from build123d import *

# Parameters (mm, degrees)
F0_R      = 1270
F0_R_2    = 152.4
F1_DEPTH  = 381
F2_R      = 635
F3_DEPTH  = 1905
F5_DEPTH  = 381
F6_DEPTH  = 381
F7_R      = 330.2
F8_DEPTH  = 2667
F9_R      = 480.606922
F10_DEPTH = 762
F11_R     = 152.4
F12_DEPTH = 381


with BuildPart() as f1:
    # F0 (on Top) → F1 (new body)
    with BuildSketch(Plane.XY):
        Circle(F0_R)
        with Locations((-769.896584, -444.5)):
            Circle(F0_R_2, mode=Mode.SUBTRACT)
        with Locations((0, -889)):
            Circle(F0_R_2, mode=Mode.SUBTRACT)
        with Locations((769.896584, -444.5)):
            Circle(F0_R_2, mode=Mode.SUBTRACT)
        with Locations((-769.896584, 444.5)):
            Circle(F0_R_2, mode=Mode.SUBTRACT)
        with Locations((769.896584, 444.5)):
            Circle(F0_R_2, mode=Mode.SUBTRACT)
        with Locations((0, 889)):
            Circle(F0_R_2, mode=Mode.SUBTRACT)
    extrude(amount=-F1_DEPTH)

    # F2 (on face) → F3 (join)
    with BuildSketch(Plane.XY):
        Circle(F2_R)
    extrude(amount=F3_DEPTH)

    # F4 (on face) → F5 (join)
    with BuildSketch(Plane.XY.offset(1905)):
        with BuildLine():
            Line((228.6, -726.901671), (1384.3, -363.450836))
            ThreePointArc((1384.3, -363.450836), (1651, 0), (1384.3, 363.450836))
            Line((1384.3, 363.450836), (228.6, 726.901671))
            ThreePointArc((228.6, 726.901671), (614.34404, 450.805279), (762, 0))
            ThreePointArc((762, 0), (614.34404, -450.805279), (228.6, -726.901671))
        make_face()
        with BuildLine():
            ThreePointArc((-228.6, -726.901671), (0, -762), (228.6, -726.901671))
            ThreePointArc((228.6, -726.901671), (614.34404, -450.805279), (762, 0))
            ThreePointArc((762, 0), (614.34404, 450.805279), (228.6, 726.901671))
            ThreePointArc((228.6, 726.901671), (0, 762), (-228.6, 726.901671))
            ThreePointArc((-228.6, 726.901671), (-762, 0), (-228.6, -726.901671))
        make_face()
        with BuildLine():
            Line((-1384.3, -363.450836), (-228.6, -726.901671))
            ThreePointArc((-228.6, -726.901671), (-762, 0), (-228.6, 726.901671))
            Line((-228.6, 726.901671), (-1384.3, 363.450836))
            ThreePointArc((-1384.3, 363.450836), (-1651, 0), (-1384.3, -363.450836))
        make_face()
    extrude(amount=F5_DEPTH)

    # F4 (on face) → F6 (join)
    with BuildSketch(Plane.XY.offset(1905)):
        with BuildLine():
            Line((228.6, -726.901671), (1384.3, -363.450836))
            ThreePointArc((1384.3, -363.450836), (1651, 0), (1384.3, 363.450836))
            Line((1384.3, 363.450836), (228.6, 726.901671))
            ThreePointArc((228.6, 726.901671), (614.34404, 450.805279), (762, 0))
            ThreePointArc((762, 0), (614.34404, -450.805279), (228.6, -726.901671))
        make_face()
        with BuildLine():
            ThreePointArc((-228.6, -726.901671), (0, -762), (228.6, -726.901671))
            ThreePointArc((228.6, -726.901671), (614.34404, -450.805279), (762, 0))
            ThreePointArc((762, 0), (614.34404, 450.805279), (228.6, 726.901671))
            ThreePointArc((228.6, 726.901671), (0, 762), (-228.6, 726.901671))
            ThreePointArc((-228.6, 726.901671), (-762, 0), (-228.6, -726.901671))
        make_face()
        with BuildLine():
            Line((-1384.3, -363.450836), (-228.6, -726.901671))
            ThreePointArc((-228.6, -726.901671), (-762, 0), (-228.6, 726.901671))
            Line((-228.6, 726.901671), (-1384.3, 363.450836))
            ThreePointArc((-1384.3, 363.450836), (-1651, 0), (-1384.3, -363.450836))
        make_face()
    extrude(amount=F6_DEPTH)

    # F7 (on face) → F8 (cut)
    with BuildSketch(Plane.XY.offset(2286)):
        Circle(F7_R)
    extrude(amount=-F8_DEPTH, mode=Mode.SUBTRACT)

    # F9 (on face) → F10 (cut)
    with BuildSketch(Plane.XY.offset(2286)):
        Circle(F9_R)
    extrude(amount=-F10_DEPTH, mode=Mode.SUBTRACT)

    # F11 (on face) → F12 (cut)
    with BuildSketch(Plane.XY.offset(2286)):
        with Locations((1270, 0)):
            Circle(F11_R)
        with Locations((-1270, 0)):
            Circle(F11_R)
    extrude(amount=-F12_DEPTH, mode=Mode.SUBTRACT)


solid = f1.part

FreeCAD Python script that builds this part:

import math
import FreeCAD as App
import Part
import Sketcher

V = App.Vector
Q = App.Units.Quantity

doc = App.newDocument("Part")
params = doc.addObject("Spreadsheet::Sheet", "Params")
for row, (alias, value) in enumerate([
    ("sketch1_diameter", "100 in"),
    ("sketch1_diameter2", "12 in"),
    ("pad1_length", "15 in"),
    ("sketch2_diameter", "50 in"),
    ("pad2_length", "75 in"),
    ("sketch3_radius", "15 in"),
    ("pad3_length", "15 in"),
    ("sketch4_radius", "15 in"),
    ("pad4_length", "15 in"),
    ("sketch5_diameter", "26 in"),
    ("pocket1_length", "105 in"),
    ("pocket2_length", "30 in"),
    ("sketch7_diameter", "12 in"),
    ("pocket3_length", "15 in"),
], start=1):
    params.set(f"A{row}", alias)
    params.set(f"B{row}", "=" + value)
    params.setAlias(f"B{row}", alias)

body = doc.addObject("PartDesign::Body", "Body")

# Sketch on XY plane
sketch1 = doc.addObject("Sketcher::SketchObject", "Sketch")
body.addObject(sketch1)
sketch1.AttachmentSupport = (doc.XY_Plane, [""])
sketch1.MapMode = "FlatFace"
sketch1.addGeometry([
    Part.Circle(V(0, 0, 0), V(0, 0, 1), 1270),  # 0
    Part.Circle(V(0, -889, 0), V(0, 0, 1), 152),  # 1
    Part.Circle(V(-770, -444, 0), V(0, 0, 1), 152),  # 2
    Part.Circle(V(770, -444, 0), V(0, 0, 1), 152),  # 3
    Part.Circle(V(-770, 444, 0), V(0, 0, 1), 152),  # 4
    Part.Circle(V(0, 889, 0), V(0, 0, 1), 152),  # 5
    Part.Circle(V(770, 444, 0), V(0, 0, 1), 152),  # 6
], False)
sketch1.addConstraint([
    Sketcher.Constraint("Coincident", 0, 3, -1, 1),
    Sketcher.Constraint("Equal", 1, 2),
    Sketcher.Constraint("Equal", 2, 3),
    Sketcher.Constraint("Equal", 3, 4),
    Sketcher.Constraint("Equal", 4, 5),
    Sketcher.Constraint("Equal", 5, 6),
    Sketcher.Constraint("Symmetric", 3, 3, 4, 3, -1, 1),
    Sketcher.Constraint("Symmetric", 1, 3, 5, 3, -1, 1),
    Sketcher.Constraint("Symmetric", 2, 3, 6, 3, -1, 1),
    Sketcher.Constraint("Symmetric", 2, 3, 3, 3, -2),
    Sketcher.Constraint("PointOnObject", 1, 3, -2),
    Sketcher.Constraint("Diameter", 0, Q("100 in")),
    Sketcher.Constraint("Diameter", 1, Q("12 in")),
    Sketcher.Constraint("DistanceY", 1, 3, -1, 1, Q("35 in")),
    Sketcher.Constraint("DistanceY", 2, 3, 4, 3, Q("35 in")),
    Sketcher.Constraint("DistanceX", 2, 3, 3, 3, Q("1539.793168 mm")),
])
sketch1.setExpression("Constraints[11]", "Params.sketch1_diameter")
sketch1.setExpression("Constraints[12]", "Params.sketch1_diameter2")
pad1 = doc.addObject("PartDesign::Pad", "Pad")
body.addObject(pad1)
pad1.Profile = sketch1
pad1.setExpression("Length", "Params.pad1_length")
pad1.Reversed = True

# Sketch on XY plane
sketch2 = doc.addObject("Sketcher::SketchObject", "Sketch001")
body.addObject(sketch2)
sketch2.AttachmentSupport = (doc.XY_Plane, [""])
sketch2.MapMode = "FlatFace"
sketch2.addGeometry(Part.Circle(V(0, 0, 0), V(0, 0, 1), 635), False)
sketch2.addConstraint([
    Sketcher.Constraint("Coincident", 0, 3, -1, 1),
    Sketcher.Constraint("Diameter", 0, Q("50 in")),
])
sketch2.setExpression("Constraints[1]", "Params.sketch2_diameter")
pad2 = doc.addObject("PartDesign::Pad", "Pad001")
body.addObject(pad2)
pad2.Profile = sketch2
pad2.setExpression("Length", "Params.pad2_length")

# Sketch on XY plane
sketch3 = doc.addObject("Sketcher::SketchObject", "Sketch002")
body.addObject(sketch3)
sketch3.AttachmentSupport = (doc.XY_Plane, [""])
sketch3.MapMode = "FlatFace"
sketch3.AttachmentOffset = App.Placement(V(0, 0, 75 * 25.4), App.Rotation())
sketch3.addGeometry([
    Part.LineSegment(V(229, -727, 0), V(1384, -363, 0)),  # 0
    Part.ArcOfCircle(Part.Circle(V(1270, 0, 0), V(0, 0, 1), 381), math.radians(-73), math.radians(73)),  # 1
    Part.LineSegment(V(1384, 363, 0), V(229, 727, 0)),  # 2
    Part.ArcOfCircle(Part.Circle(V(0, 0, 0), V(0, 0, 1), 762), math.radians(73), math.radians(107)),  # 3
    Part.LineSegment(V(-229, 727, 0), V(-1384, 363, 0)),  # 4
    Part.ArcOfCircle(Part.Circle(V(-1270, 0, 0), V(0, 0, 1), 381), math.radians(107), math.radians(253)),  # 5
    Part.LineSegment(V(-1384, -363, 0), V(-229, -727, 0)),  # 6
    Part.ArcOfCircle(Part.Circle(V(0, 0, 0), V(0, 0, 1), 762), math.radians(-107), math.radians(-73)),  # 7
], False)
sketch3.addConstraint([
    Sketcher.Constraint("Tangent", 0, 2, 1, 1),
    Sketcher.Constraint("Tangent", 1, 2, 2, 1),
    Sketcher.Constraint("Tangent", 2, 2, 3, 1),
    Sketcher.Constraint("Coincident", 3, 2, 4, 1),
    Sketcher.Constraint("Tangent", 4, 2, 5, 1),
    Sketcher.Constraint("Tangent", 5, 2, 6, 1),
    Sketcher.Constraint("Tangent", 6, 2, 7, 1),
    Sketcher.Constraint("Coincident", 7, 2, 0, 1),
    Sketcher.Constraint("Coincident", 3, 3, -1, 1),
    Sketcher.Constraint("Coincident", 7, 3, -1, 1),
    Sketcher.Constraint("Equal", 1, 5),
    Sketcher.Constraint("Equal", 3, 7),
    Sketcher.Constraint("Symmetric", 1, 3, 5, 3, -1, 1),
    Sketcher.Constraint("PointOnObject", 1, 3, -1),
    Sketcher.Constraint("Equal", 0, 2),
    Sketcher.Constraint("Equal", 2, 4),
    Sketcher.Constraint("Radius", 1, Q("15 in")),
    Sketcher.Constraint("DistanceX", -1, 1, 1, 3, Q("50 in")),
    Sketcher.Constraint("DistanceX", -1, 1, 2, 2, Q("9 in")),
])
sketch3.setExpression("Constraints[16]", "Params.sketch3_radius")
pad3 = doc.addObject("PartDesign::Pad", "Pad002")
body.addObject(pad3)
pad3.Profile = sketch3
pad3.setExpression("Length", "Params.pad3_length")

# Sketch on XY plane
sketch4 = doc.addObject("Sketcher::SketchObject", "Sketch003")
body.addObject(sketch4)
sketch4.AttachmentSupport = (doc.XY_Plane, [""])
sketch4.MapMode = "FlatFace"
sketch4.AttachmentOffset = App.Placement(V(0, 0, 75 * 25.4), App.Rotation())
sketch4.addGeometry([
    Part.LineSegment(V(229, -727, 0), V(1384, -363, 0)),  # 0
    Part.ArcOfCircle(Part.Circle(V(1270, 0, 0), V(0, 0, 1), 381), math.radians(-73), math.radians(73)),  # 1
    Part.LineSegment(V(1384, 363, 0), V(229, 727, 0)),  # 2
    Part.ArcOfCircle(Part.Circle(V(0, 0, 0), V(0, 0, 1), 762), math.radians(73), math.radians(107)),  # 3
    Part.LineSegment(V(-229, 727, 0), V(-1384, 363, 0)),  # 4
    Part.ArcOfCircle(Part.Circle(V(-1270, 0, 0), V(0, 0, 1), 381), math.radians(107), math.radians(253)),  # 5
    Part.LineSegment(V(-1384, -363, 0), V(-229, -727, 0)),  # 6
    Part.ArcOfCircle(Part.Circle(V(0, 0, 0), V(0, 0, 1), 762), math.radians(-107), math.radians(-73)),  # 7
], False)
sketch4.addConstraint([
    Sketcher.Constraint("Tangent", 0, 2, 1, 1),
    Sketcher.Constraint("Tangent", 1, 2, 2, 1),
    Sketcher.Constraint("Tangent", 2, 2, 3, 1),
    Sketcher.Constraint("Coincident", 3, 2, 4, 1),
    Sketcher.Constraint("Tangent", 4, 2, 5, 1),
    Sketcher.Constraint("Tangent", 5, 2, 6, 1),
    Sketcher.Constraint("Tangent", 6, 2, 7, 1),
    Sketcher.Constraint("Coincident", 7, 2, 0, 1),
    Sketcher.Constraint("Coincident", 3, 3, -1, 1),
    Sketcher.Constraint("Coincident", 7, 3, -1, 1),
    Sketcher.Constraint("Equal", 1, 5),
    Sketcher.Constraint("Equal", 3, 7),
    Sketcher.Constraint("Symmetric", 1, 3, 5, 3, -1, 1),
    Sketcher.Constraint("PointOnObject", 1, 3, -1),
    Sketcher.Constraint("Equal", 0, 2),
    Sketcher.Constraint("Equal", 2, 4),
    Sketcher.Constraint("Radius", 1, Q("15 in")),
    Sketcher.Constraint("DistanceX", -1, 1, 1, 3, Q("50 in")),
    Sketcher.Constraint("DistanceX", -1, 1, 2, 2, Q("9 in")),
])
sketch4.setExpression("Constraints[16]", "Params.sketch4_radius")
pad4 = doc.addObject("PartDesign::Pad", "Pad003")
body.addObject(pad4)
pad4.Profile = sketch4
pad4.setExpression("Length", "Params.pad4_length")

# Sketch on XY plane
sketch5 = doc.addObject("Sketcher::SketchObject", "Sketch004")
body.addObject(sketch5)
sketch5.AttachmentSupport = (doc.XY_Plane, [""])
sketch5.MapMode = "FlatFace"
sketch5.AttachmentOffset = App.Placement(V(0, 0, 90 * 25.4), App.Rotation())
sketch5.addGeometry(Part.Circle(V(0, 0, 0), V(0, 0, 1), 330), False)
sketch5.addConstraint([
    Sketcher.Constraint("Coincident", 0, 3, -1, 1),
    Sketcher.Constraint("Diameter", 0, Q("26 in")),
])
sketch5.setExpression("Constraints[1]", "Params.sketch5_diameter")
pocket1 = doc.addObject("PartDesign::Pocket", "Pocket")
body.addObject(pocket1)
pocket1.Profile = sketch5
pocket1.setExpression("Length", "Params.pocket1_length")

# Sketch on XY plane
sketch6 = doc.addObject("Sketcher::SketchObject", "Sketch005")
body.addObject(sketch6)
sketch6.AttachmentSupport = (doc.XY_Plane, [""])
sketch6.MapMode = "FlatFace"
sketch6.AttachmentOffset = App.Placement(V(0, 0, 90 * 25.4), App.Rotation())
sketch6.addGeometry(Part.Circle(V(0, 0, 0), V(0, 0, 1), 481), False)
sketch6.addConstraint([
    Sketcher.Constraint("Coincident", 0, 3, -1, 1),
    Sketcher.Constraint("Diameter", 0, Q("961.213844 mm")),
])
pocket2 = doc.addObject("PartDesign::Pocket", "Pocket001")
body.addObject(pocket2)
pocket2.Profile = sketch6
pocket2.setExpression("Length", "Params.pocket2_length")

# Sketch on XY plane
sketch7 = doc.addObject("Sketcher::SketchObject", "Sketch006")
body.addObject(sketch7)
sketch7.AttachmentSupport = (doc.XY_Plane, [""])
sketch7.MapMode = "FlatFace"
sketch7.AttachmentOffset = App.Placement(V(0, 0, 90 * 25.4), App.Rotation())
sketch7.addGeometry([
    Part.Circle(V(1270, 0, 0), V(0, 0, 1), 152),
    Part.Circle(V(-1270, 0, 0), V(0, 0, 1), 152),
], False)
sketch7.addConstraint([
    Sketcher.Constraint("Equal", 0, 1),
    Sketcher.Constraint("Symmetric", 0, 3, 1, 3, -1, 1),
    Sketcher.Constraint("PointOnObject", 0, 3, -1),
    Sketcher.Constraint("Diameter", 0, Q("12 in")),
    Sketcher.Constraint("DistanceX", -1, 1, 0, 3, Q("50 in")),
])
sketch7.setExpression("Constraints[3]", "Params.sketch7_diameter")
pocket3 = doc.addObject("PartDesign::Pocket", "Pocket002")
body.addObject(pocket3)
pocket3.Profile = sketch7
pocket3.setExpression("Length", "Params.pocket3_length")

doc.recompute()
